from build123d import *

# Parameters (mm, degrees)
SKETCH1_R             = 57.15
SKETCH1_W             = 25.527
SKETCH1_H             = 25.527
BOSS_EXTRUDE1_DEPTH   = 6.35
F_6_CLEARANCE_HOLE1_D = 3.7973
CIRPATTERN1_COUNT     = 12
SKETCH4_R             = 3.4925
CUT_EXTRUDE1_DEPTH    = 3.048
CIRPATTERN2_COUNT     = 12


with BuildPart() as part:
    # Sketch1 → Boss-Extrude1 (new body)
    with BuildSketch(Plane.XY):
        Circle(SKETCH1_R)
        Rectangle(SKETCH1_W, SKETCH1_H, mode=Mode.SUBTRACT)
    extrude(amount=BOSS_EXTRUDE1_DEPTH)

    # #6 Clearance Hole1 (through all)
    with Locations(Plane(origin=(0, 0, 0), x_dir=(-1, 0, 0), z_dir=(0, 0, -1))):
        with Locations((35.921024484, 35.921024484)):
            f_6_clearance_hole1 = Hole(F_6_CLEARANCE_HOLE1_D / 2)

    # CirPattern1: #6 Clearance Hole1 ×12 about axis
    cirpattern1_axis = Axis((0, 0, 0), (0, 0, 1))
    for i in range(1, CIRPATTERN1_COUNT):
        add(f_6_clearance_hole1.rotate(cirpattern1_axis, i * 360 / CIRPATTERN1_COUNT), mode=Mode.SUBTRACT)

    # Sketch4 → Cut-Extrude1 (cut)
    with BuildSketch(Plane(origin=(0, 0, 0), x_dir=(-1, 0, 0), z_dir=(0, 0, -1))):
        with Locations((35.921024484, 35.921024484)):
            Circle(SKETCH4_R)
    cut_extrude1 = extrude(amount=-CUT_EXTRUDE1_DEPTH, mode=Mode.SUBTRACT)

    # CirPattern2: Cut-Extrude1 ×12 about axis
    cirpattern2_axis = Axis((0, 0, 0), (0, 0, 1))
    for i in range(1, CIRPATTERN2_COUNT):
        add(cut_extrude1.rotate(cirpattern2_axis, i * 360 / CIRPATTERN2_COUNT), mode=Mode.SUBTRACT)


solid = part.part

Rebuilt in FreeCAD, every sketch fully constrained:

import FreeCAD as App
import Part
import Sketcher
from FreeCAD import Vector
Q = App.Units.Quantity


def add_polygon(sketch, points):
    """Adds a closed chain of lines whose ends are joined by coincident constraints."""
    first, n = sketch.GeometryCount, len(points)
    for a, b in zip(points, points[1:] + points[:1]):
        sketch.addGeometry(Part.LineSegment(App.Vector(*a, 0), App.Vector(*b, 0)), False)
    for i in range(n):
        sketch.addConstraint(Sketcher.Constraint("Coincident", first + i, 2, first + (i + 1) % n, 1))

doc = App.newDocument("Part")
body = doc.addObject("PartDesign::Body", "Body")

# Sketch on XY plane
sketch1 = body.newObject("Sketcher::SketchObject", "Sketch")
sketch1.AttachmentSupport = (doc.getObject("XY_Plane"), [""])
sketch1.MapMode = "FlatFace"
sketch1.addGeometry(Part.Circle(Vector(0, 0, 0), Vector(0, 0, 1), 57.15), False)  # 0
add_polygon(sketch1, [(12.7635, -12.7635), (-12.7635, -12.7635), (-12.7635, 12.7635), (12.7635, 12.7635)])  # lines 1-4
sketch1.addConstraint([
    Sketcher.Constraint("Horizontal", 1),
    Sketcher.Constraint("Vertical", 2),
    Sketcher.Constraint("Horizontal", 3),
    Sketcher.Constraint("Vertical", 4),
    Sketcher.Constraint("Coincident", 0, 3, -1, 1),
    Sketcher.Constraint("Symmetric", 1, 2, 3, 2, -1, 1),
    Sketcher.Constraint("Equal", 3, 2),
    Sketcher.Constraint("Diameter", 0, Q("4.5 in")),
    Sketcher.Constraint("DistanceX", 1, 2, 1, 1, Q("1.005 in")),
])
pad1 = body.newObject("PartDesign::Pad", "Pad")
pad1.Profile = sketch1
pad1.Length = Q("0.25 in")

# Sketch on XY plane
sketch2 = body.newObject("Sketcher::SketchObject", "Sketch001")
sketch2.AttachmentSupport = (doc.getObject("XY_Plane"), [""])
sketch2.MapMode = "FlatFace"
sketch2.addGeometry(Part.Circle(Vector(-35.921024, 35.921024, 0), Vector(0, 0, 1), 1.89865), False)
sketch2.addConstraint([
    Sketcher.Constraint("Diameter", 0, Q("0.1495 in")),
    Sketcher.Constraint("DistanceX", 0, 3, -1, 1, 35.921024),
    Sketcher.Constraint("DistanceY", -1, 1, 0, 3, 35.921024),
])
doc.recompute()
hole = body.newObject("PartDesign::Hole", "Hole")
hole.Profile = sketch2
hole.ThreadType = "None"
hole.Diameter = Q("0.1495 in")
hole.DepthType = "ThroughAll"
hole.Reversed = True
doc.recompute()

polarpattern = body.newObject("PartDesign::PolarPattern", "PolarPattern")
polarpattern.Originals = [hole]
polarpattern.Axis = (doc.getObject("Z_Axis"), [""])
polarpattern.Angle = 360
polarpattern.Occurrences = 12
body.Tip = polarpattern

# Sketch on XY plane
sketch3 = body.newObject("Sketcher::SketchObject", "Sketch002")
sketch3.AttachmentSupport = (doc.getObject("XY_Plane"), [""])
sketch3.MapMode = "FlatFace"
sketch3.addGeometry(Part.Circle(Vector(-35.921024, 35.921024, 0), Vector(0, 0, 1), 3.4925), False)
sketch3.addConstraint([
    Sketcher.Constraint("Diameter", 0, Q("0.275 in")),
    Sketcher.Constraint("DistanceX", 0, 3, -1, 1, 35.921024),
    Sketcher.Constraint("DistanceY", -1, 1, 0, 3, 35.921024),
])
pocket1 = body.newObject("PartDesign::Pocket", "Pocket")
pocket1.Profile = sketch3
pocket1.Length = Q("0.12 in")
pocket1.Reversed = True
doc.recompute()

polarpattern2 = body.newObject("PartDesign::PolarPattern", "PolarPattern001")
polarpattern2.Originals = [pocket1]
polarpattern2.Axis = (doc.getObject("Z_Axis"), [""])
polarpattern2.Angle = 360
polarpattern2.Occurrences = 12
body.Tip = polarpattern2

doc.recompute()
